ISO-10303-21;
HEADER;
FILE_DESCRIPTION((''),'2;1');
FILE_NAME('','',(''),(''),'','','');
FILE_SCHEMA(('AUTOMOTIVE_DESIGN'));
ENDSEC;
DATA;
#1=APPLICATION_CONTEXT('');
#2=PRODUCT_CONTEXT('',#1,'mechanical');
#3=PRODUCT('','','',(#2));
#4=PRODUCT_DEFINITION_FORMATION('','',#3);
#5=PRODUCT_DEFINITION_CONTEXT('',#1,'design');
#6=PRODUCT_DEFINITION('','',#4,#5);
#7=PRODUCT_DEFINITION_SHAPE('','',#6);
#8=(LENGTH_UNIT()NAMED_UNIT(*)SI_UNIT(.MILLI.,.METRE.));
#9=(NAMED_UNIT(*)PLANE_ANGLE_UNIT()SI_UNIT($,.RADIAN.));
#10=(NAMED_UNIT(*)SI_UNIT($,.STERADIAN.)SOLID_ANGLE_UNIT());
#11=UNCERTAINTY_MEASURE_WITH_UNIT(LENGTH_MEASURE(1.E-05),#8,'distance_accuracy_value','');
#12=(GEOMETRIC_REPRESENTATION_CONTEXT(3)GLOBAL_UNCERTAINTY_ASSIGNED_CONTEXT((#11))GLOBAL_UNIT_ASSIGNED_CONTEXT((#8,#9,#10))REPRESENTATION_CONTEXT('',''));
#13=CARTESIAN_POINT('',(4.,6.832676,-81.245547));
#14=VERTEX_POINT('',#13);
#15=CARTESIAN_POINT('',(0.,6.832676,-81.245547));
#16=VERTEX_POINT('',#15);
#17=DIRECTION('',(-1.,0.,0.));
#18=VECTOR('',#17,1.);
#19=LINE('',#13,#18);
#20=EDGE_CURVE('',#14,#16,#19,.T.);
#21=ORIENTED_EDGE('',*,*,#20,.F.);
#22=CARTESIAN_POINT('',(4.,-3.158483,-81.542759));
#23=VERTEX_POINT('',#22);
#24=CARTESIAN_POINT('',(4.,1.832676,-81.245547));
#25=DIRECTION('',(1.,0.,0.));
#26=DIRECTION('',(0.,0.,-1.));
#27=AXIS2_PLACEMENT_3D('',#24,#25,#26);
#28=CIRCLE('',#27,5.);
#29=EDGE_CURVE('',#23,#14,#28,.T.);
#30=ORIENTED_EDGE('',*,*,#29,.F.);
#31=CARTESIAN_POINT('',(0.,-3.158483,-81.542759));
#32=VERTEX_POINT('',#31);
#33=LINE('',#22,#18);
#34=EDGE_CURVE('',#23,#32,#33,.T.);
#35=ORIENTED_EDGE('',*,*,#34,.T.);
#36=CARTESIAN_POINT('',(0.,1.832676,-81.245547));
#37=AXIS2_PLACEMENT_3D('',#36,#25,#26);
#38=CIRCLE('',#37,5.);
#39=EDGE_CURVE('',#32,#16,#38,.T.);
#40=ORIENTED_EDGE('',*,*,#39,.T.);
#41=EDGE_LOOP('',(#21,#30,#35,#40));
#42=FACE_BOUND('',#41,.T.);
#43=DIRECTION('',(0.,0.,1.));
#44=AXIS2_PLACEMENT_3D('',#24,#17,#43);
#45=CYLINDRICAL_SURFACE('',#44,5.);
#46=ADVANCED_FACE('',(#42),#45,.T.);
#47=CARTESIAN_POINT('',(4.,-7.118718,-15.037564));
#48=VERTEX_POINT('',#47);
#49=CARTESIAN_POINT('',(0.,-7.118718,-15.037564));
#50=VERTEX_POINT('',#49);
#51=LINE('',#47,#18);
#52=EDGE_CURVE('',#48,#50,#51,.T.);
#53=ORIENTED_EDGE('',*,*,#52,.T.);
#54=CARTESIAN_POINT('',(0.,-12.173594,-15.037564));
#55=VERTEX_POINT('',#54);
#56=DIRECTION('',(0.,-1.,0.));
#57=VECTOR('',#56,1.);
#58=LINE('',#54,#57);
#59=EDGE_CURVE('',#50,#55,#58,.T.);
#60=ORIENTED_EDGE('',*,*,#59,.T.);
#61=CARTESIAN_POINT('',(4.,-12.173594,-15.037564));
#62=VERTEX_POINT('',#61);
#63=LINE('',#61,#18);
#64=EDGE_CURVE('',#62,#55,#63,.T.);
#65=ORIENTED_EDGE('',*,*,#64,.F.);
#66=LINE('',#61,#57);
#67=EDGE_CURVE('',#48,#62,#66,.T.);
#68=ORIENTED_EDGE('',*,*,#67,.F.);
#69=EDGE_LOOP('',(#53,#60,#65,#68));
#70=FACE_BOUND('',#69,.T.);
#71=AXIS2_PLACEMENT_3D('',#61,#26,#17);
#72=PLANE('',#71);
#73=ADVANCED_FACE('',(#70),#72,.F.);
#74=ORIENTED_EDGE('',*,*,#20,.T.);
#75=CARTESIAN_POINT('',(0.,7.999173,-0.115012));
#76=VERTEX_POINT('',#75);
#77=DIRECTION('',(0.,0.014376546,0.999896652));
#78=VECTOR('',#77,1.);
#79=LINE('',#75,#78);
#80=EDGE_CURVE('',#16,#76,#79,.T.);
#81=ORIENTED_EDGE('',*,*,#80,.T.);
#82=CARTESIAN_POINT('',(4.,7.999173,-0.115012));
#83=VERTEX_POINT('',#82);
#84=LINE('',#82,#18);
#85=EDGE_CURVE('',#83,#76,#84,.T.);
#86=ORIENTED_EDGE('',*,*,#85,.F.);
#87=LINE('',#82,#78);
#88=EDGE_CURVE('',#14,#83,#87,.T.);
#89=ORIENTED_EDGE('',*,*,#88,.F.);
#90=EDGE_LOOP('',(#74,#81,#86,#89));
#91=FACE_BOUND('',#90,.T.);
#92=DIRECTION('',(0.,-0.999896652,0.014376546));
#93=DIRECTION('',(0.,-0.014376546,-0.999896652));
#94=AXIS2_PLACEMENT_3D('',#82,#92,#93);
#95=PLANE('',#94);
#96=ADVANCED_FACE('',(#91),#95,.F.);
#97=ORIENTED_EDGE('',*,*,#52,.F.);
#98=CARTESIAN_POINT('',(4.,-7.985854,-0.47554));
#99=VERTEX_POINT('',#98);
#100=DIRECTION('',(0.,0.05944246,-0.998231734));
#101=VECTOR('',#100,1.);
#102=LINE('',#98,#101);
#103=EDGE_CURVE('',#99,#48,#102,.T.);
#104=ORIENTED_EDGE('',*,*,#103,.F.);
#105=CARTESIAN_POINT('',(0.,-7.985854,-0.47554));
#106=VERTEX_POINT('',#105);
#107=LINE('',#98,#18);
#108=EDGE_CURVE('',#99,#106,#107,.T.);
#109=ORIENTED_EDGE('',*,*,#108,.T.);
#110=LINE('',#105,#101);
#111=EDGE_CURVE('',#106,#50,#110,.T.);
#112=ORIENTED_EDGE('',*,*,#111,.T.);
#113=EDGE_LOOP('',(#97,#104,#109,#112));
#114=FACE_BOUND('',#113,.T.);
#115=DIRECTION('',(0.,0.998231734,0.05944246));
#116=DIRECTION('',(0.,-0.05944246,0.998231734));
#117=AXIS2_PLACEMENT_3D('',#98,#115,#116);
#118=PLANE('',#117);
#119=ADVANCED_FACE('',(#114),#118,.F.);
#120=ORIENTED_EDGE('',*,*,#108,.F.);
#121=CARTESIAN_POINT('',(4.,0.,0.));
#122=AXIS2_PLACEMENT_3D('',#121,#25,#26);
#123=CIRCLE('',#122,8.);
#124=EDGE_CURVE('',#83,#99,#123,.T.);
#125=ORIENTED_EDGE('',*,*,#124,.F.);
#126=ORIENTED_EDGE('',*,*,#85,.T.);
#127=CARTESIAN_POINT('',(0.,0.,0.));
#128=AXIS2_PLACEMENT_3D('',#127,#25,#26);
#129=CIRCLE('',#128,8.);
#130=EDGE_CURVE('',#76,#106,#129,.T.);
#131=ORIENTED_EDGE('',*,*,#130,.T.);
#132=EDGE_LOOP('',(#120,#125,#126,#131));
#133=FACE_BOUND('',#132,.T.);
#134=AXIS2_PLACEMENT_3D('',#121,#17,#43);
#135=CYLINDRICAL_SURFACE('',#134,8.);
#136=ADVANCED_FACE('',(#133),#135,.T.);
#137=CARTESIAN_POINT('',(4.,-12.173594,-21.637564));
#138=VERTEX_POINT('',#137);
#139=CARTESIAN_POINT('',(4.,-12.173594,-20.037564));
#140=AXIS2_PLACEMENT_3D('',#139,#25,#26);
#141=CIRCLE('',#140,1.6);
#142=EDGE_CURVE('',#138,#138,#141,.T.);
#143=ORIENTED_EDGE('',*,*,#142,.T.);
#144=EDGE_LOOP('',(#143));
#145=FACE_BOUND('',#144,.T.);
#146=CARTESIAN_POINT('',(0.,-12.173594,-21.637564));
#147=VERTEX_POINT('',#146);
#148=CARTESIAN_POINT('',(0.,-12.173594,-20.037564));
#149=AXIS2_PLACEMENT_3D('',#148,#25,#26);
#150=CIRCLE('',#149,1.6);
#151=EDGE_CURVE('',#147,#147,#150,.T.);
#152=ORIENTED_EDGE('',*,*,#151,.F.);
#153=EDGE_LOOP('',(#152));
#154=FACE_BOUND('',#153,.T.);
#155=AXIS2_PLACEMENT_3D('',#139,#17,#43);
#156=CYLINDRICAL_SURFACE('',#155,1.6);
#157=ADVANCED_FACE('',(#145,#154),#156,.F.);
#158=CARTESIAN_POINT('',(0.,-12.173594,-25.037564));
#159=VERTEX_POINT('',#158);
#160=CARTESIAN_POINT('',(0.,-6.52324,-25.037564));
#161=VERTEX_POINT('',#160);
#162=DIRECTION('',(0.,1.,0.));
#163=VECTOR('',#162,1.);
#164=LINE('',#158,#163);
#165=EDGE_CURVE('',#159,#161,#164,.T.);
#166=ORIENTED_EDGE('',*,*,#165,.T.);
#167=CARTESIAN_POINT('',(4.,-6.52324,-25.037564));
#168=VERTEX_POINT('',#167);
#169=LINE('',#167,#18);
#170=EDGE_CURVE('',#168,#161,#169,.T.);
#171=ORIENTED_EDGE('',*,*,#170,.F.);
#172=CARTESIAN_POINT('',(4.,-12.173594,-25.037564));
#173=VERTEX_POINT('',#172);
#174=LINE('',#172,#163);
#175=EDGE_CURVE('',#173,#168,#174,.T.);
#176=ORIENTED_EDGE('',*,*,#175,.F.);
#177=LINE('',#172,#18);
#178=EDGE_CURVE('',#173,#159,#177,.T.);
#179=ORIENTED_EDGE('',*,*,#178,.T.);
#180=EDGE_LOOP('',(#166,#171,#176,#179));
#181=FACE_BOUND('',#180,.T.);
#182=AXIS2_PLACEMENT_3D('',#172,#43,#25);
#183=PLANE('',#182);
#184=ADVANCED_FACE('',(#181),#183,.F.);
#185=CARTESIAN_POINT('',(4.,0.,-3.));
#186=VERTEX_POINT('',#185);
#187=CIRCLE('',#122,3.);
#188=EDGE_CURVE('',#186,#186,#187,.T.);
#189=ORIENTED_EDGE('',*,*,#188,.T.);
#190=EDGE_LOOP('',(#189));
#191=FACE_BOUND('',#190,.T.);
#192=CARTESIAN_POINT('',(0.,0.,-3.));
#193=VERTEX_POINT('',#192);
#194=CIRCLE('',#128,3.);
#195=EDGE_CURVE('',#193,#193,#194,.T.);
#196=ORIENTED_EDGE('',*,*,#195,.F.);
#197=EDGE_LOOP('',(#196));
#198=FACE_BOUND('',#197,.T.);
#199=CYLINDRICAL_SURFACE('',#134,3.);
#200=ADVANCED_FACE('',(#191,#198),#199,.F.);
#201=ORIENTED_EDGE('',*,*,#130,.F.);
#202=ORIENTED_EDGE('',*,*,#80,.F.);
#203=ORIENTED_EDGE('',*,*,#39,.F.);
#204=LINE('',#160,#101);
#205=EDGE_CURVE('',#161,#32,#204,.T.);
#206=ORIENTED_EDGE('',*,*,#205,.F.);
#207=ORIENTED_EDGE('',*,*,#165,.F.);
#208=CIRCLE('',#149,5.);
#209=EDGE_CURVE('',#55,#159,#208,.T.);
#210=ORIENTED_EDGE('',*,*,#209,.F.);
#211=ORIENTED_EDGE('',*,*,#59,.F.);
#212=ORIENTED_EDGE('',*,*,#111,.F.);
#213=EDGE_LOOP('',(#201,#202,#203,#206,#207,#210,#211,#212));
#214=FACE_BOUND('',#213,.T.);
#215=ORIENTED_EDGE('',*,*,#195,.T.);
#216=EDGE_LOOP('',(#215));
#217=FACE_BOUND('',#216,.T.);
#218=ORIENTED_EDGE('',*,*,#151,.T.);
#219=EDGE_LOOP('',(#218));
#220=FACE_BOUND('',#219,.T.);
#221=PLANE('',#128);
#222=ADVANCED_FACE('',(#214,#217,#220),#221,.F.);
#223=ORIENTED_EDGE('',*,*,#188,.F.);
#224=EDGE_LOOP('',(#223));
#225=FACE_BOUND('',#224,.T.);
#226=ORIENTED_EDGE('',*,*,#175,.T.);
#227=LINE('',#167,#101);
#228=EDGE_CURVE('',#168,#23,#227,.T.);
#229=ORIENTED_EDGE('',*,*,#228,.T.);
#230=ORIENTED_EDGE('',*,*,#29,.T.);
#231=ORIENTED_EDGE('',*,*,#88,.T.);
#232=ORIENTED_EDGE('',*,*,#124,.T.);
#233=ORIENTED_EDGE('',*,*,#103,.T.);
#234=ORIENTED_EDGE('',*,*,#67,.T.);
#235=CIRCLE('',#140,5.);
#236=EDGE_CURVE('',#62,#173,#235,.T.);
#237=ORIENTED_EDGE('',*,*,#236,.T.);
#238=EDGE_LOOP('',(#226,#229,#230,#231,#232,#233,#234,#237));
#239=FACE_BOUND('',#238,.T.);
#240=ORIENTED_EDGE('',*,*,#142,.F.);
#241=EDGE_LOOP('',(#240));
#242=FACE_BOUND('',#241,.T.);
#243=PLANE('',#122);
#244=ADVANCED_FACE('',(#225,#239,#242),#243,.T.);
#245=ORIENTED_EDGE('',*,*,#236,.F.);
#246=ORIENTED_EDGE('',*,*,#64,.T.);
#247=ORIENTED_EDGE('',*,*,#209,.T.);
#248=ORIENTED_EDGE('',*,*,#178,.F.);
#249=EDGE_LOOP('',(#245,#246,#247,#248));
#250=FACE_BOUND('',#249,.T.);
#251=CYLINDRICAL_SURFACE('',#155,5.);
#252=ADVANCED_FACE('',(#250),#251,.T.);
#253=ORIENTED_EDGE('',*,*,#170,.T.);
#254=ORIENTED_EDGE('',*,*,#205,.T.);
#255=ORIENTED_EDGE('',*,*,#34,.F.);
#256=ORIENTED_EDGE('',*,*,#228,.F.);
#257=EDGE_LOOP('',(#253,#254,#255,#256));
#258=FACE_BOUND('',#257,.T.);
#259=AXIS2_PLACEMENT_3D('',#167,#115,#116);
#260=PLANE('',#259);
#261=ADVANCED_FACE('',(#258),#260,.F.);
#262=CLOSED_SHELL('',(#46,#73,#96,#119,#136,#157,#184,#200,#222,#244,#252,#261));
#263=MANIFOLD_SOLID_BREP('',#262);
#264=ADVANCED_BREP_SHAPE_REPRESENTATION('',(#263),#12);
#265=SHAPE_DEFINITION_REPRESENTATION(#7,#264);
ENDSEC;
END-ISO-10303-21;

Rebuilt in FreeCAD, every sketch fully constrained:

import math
import FreeCAD as App
import Part
import Sketcher

doc = App.newDocument("Part")
body = doc.addObject("PartDesign::Body", "Body")

# Sketch on YZ plane
sketch1 = doc.addObject("Sketcher::SketchObject", "Sketch")
body.addObject(sketch1)
sketch1.AttachmentSupport = (doc.YZ_Plane, [""])
sketch1.MapMode = "FlatFace"
sketch1.addGeometry([
    Part.LineSegment(App.Vector(6.8, -81.2, 0), App.Vector(8, -0.1, 0)),  # 0
    Part.ArcOfCircle(Part.Circle(App.Vector(0, 0, 0), App.Vector(0, 0, 1), 8), math.radians(-1), math.radians(183)),  # 1
    Part.LineSegment(App.Vector(-8, -0.5, 0), App.Vector(-7.1, -15, 0)),  # 2
    Part.LineSegment(App.Vector(-7.1, -15, 0), App.Vector(-12.2, -15, 0)),  # 3
    Part.ArcOfCircle(Part.Circle(App.Vector(-12.2, -20, 0), App.Vector(0, 0, 1), 5), math.radians(90), math.radians(270)),  # 4
    Part.LineSegment(App.Vector(-12.2, -25, 0), App.Vector(-6.5, -25, 0)),  # 5
    Part.LineSegment(App.Vector(-6.5, -25, 0), App.Vector(-3.2, -81.5, 0)),  # 6
    Part.ArcOfCircle(Part.Circle(App.Vector(1.8, -81.2, 0), App.Vector(0, 0, 1), 5), math.radians(-177), math.radians(0)),  # 7
    Part.Circle(App.Vector(-12.2, -20, 0), App.Vector(0, 0, 1), 1.6),  # 8
    Part.Circle(App.Vector(0, 0, 0), App.Vector(0, 0, 1), 3),  # 9
], False)
sketch1.addConstraint([
    Sketcher.Constraint("Tangent", 0, 2, 1, 1),
    Sketcher.Constraint("Tangent", 1, 2, 2, 1),
    Sketcher.Constraint("Coincident", 2, 2, 3, 1),
    Sketcher.Constraint("Tangent", 3, 2, 4, 1),
    Sketcher.Constraint("Tangent", 4, 2, 5, 1),
    Sketcher.Constraint("Coincident", 5, 2, 6, 1),
    Sketcher.Constraint("Tangent", 6, 2, 7, 1),
    Sketcher.Constraint("Coincident", 7, 2, 0, 1),
    Sketcher.Constraint("Horizontal", 3),
    Sketcher.Constraint("Horizontal", 5),
    Sketcher.Constraint("Coincident", 1, 3, -1, 1),
    Sketcher.Constraint("Coincident", 9, 3, -1, 1),
    Sketcher.Constraint("Coincident", 8, 3, 4, 3),
    Sketcher.Constraint("Equal", 4, 7),
    Sketcher.Constraint("Parallel", 2, 6),
    Sketcher.Constraint("Diameter", 9, 6.0),
    Sketcher.Constraint("Radius", 1, 8.0),
    Sketcher.Constraint("Radius", 4, 5.0),
    Sketcher.Constraint("Diameter", 8, 3.2),
    Sketcher.Constraint("Distance", 0, 81.13892),
    Sketcher.Constraint("Distance", 2, 14.587819),
    Sketcher.Constraint("Distance", 6, 56.605289),
    Sketcher.Constraint("DistanceX", 3, 2, 3, 1, 5.054876),
    Sketcher.Constraint("DistanceX", 5, 1, 5, 2, 5.650354),
    Sketcher.Constraint("DistanceY", 1, 2, -1, 1, 0.47554),
])
pad1 = doc.addObject("PartDesign::Pad", "Pad")
body.addObject(pad1)
pad1.Profile = sketch1
pad1.Length = 4

doc.recompute()
